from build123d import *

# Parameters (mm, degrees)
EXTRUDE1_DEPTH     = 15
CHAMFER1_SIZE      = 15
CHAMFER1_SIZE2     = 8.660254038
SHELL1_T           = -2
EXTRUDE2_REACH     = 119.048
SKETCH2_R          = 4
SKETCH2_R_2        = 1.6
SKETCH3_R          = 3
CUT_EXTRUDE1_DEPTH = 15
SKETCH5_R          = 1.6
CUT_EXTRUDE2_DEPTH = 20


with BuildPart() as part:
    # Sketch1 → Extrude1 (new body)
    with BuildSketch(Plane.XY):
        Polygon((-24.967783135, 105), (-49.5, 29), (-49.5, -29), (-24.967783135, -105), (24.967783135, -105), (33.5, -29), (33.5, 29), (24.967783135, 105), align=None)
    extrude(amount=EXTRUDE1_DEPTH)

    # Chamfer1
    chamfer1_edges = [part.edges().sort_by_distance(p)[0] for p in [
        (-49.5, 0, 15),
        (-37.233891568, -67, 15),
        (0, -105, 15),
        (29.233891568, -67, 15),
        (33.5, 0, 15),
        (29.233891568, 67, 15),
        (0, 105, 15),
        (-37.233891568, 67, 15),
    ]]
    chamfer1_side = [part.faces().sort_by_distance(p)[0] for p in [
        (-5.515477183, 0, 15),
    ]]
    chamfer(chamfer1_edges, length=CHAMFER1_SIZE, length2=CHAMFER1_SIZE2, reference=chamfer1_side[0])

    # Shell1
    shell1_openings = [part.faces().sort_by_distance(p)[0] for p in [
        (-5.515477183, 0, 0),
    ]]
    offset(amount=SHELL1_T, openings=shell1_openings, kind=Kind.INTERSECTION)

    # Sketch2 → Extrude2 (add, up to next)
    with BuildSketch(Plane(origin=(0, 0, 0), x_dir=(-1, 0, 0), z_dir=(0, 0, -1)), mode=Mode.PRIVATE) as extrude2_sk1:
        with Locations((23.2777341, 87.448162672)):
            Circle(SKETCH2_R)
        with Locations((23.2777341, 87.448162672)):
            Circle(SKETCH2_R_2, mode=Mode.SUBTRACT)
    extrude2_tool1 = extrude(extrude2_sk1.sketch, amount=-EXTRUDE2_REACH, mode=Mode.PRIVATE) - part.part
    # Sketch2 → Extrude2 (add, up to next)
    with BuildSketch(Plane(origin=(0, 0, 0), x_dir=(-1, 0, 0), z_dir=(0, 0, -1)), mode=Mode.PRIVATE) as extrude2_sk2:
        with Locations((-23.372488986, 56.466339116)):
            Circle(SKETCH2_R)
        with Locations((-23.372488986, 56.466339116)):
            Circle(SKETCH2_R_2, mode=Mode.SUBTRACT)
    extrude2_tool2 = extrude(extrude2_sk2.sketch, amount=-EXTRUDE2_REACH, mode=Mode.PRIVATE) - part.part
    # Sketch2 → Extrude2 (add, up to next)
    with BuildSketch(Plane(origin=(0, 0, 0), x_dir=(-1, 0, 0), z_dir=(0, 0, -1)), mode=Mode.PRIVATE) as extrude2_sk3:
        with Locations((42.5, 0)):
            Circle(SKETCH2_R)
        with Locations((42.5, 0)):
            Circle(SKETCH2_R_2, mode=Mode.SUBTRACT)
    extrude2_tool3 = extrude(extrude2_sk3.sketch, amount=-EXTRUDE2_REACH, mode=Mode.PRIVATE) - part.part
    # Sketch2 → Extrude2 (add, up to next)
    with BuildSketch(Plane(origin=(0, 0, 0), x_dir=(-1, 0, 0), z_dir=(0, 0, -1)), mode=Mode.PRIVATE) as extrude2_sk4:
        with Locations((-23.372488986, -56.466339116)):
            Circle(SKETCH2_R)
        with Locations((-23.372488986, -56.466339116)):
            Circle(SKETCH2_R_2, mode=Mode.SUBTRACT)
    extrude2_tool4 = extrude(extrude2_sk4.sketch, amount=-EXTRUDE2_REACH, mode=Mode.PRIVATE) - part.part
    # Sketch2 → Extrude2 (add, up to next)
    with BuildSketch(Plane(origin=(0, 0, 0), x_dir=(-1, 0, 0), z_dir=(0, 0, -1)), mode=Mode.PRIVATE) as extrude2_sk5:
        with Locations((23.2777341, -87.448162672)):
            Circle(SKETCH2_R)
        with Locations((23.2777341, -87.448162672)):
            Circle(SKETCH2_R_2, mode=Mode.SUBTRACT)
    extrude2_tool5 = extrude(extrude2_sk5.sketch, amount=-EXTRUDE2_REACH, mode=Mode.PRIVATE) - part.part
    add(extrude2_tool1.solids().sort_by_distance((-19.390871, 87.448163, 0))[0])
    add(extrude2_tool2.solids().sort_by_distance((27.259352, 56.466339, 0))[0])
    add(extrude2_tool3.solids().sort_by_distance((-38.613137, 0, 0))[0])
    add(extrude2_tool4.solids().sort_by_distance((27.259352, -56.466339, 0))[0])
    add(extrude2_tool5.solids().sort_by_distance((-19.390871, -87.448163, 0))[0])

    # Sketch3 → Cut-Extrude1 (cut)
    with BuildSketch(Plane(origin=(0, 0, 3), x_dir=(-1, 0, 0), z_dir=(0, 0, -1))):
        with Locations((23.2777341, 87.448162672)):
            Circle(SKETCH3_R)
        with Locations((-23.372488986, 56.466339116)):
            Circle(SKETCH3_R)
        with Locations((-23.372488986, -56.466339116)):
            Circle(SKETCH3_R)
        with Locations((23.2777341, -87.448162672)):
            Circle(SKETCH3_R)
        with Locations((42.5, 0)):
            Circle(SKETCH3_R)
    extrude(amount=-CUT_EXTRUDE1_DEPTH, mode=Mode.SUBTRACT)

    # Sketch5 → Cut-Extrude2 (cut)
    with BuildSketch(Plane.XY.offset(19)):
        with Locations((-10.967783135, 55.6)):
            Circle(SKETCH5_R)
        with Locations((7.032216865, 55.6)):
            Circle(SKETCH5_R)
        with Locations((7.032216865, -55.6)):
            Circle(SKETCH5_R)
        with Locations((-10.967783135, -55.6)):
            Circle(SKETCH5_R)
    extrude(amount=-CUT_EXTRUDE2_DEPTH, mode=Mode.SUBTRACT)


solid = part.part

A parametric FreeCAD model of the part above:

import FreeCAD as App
import Part
import Sketcher
Q = App.Units.Quantity


def edges_at(feature, points):
    """Names of the edges that pass closest to the given points."""
    edges = feature.Shape.Edges
    near = lambda p: min(range(len(edges)), key=lambda i: edges[i].distToShape(Part.Vertex(*p))[0])
    return sorted({f"Edge{near(p) + 1}" for p in points})


def faces_at(feature, points):
    """Names of the faces that lie closest to the given points."""
    faces = feature.Shape.Faces
    near = lambda p: min(range(len(faces)), key=lambda i: faces[i].distToShape(Part.Vertex(*p))[0])
    return sorted({f"Face{near(p) + 1}" for p in points})

doc = App.newDocument("Part")
body = doc.addObject("PartDesign::Body", "Body")

sketch1 = body.newObject("Sketcher::SketchObject", "Sketch")
sketch1.AttachmentSupport = (doc.getObject("XY_Plane"), [""])
sketch1.MapMode = "FlatFace"
sketch1.addGeometry(Part.LineSegment(App.Vector(-25, 105, 0), App.Vector(-50, 29, 0)), False)
sketch1.addGeometry(Part.LineSegment(App.Vector(-50, 29, 0), App.Vector(-50, -29, 0)), False)
sketch1.addGeometry(Part.LineSegment(App.Vector(-50, -29, 0), App.Vector(-25, -105, 0)), False)
sketch1.addGeometry(Part.LineSegment(App.Vector(-25, -105, 0), App.Vector(25, -105, 0)), False)
sketch1.addGeometry(Part.LineSegment(App.Vector(25, -105, 0), App.Vector(34, -29, 0)), False)
sketch1.addGeometry(Part.LineSegment(App.Vector(34, -29, 0), App.Vector(34, 29, 0)), False)
sketch1.addGeometry(Part.LineSegment(App.Vector(34, 29, 0), App.Vector(25, 105, 0)), False)
sketch1.addGeometry(Part.LineSegment(App.Vector(25, 105, 0), App.Vector(-25, 105, 0)), False)
sketch1.addConstraint(Sketcher.Constraint("Coincident", 0, 2, 1, 1))
sketch1.addConstraint(Sketcher.Constraint("Coincident", 1, 2, 2, 1))
sketch1.addConstraint(Sketcher.Constraint("Coincident", 2, 2, 3, 1))
sketch1.addConstraint(Sketcher.Constraint("Coincident", 3, 2, 4, 1))
sketch1.addConstraint(Sketcher.Constraint("Coincident", 4, 2, 5, 1))
sketch1.addConstraint(Sketcher.Constraint("Coincident", 5, 2, 6, 1))
sketch1.addConstraint(Sketcher.Constraint("Coincident", 6, 2, 7, 1))
sketch1.addConstraint(Sketcher.Constraint("Coincident", 7, 2, 0, 1))
sketch1.addConstraint(Sketcher.Constraint("Vertical", 1))
sketch1.addConstraint(Sketcher.Constraint("Horizontal", 3))
sketch1.addConstraint(Sketcher.Constraint("Vertical", 5))
sketch1.addConstraint(Sketcher.Constraint("Horizontal", 7))
sketch1.addConstraint(Sketcher.Constraint("Symmetric", 2, 2, 6, 2, -1, 1))
sketch1.addConstraint(Sketcher.Constraint("Horizontal", 1, 2, 4, 2))
sketch1.addConstraint(Sketcher.Constraint("Horizontal", 0, 2, 5, 2))
sketch1.addConstraint(Sketcher.Constraint("Vertical", 3, 2, 6, 2))
sketch1.addConstraint(Sketcher.Constraint("Vertical", 2, 2, 7, 2))
sketch1.addConstraint(Sketcher.Constraint("Equal", 0, 2))
sketch1.addConstraint(Sketcher.Constraint("DistanceY", 1, 2, 1, 1, Q("58 mm")))
sketch1.addConstraint(Sketcher.Constraint("DistanceY", 2, 2, -1, 1, Q("105 mm")))
sketch1.addConstraint(Sketcher.Constraint("DistanceX", 1, 2, 4, 2, Q("83 mm")))
sketch1.addConstraint(Sketcher.Constraint("DistanceX", 0, 2, -1, 1, Q("49.5 mm")))
sketch1.addConstraint(Sketcher.Constraint("Distance", 4, Q("76.477439 mm")))
pad1 = body.newObject("PartDesign::Pad", "Pad")
pad1.Profile = sketch1
pad1.Length = 15
doc.recompute()

chamfer = body.newObject("PartDesign::Chamfer", "Chamfer")
chamfer.Base = (pad1, edges_at(pad1, [
    (-49.5, 0, 15),
    (-37.234, -67, 15),
    (0, -105, 15),
    (29.234, -67, 15),
    (33.5, 0, 15),
    (29.234, 67, 15),
    (0, 105, 15),
    (-37.234, 67, 15),
]))
chamfer.ChamferType = "Two distances"
chamfer.Size = 15
chamfer.Size2 = 8.660254
chamfer.FlipDirection = True
doc.recompute()

thickness = body.newObject("PartDesign::Thickness", "Thickness")
thickness.Base = (chamfer, faces_at(chamfer, [(-8, 0, 0)]))
thickness.Value = 2
thickness.Reversed = True
thickness.Join = "Intersection"

sketch2 = body.newObject("Sketcher::SketchObject", "Sketch001")
sketch2.AttachmentSupport = (doc.getObject("XY_Plane"), [""])
sketch2.MapMode = "FlatFace"
sketch2.addGeometry(Part.Circle(App.Vector(-23.3, 87.4, 0), App.Vector(0, 0, 1), 4), False)
sketch2.addGeometry(Part.Circle(App.Vector(-23.3, 87.4, 0), App.Vector(0, 0, 1), 1.6), False)
sketch2.addConstraint(Sketcher.Constraint("Coincident", 1, 3, 0, 3))
sketch2.addConstraint(Sketcher.Constraint("Diameter", 0, Q("8 mm")))
sketch2.addConstraint(Sketcher.Constraint("Diameter", 1, Q("3.2 mm")))
sketch2.addConstraint(Sketcher.Constraint("DistanceX", 0, 3, -1, 1, Q("23.277734 mm")))
sketch2.addConstraint(Sketcher.Constraint("DistanceY", -1, 1, 0, 3, Q("87.448163 mm")))
pad2 = body.newObject("PartDesign::Pad", "Pad001")
pad2.Profile = sketch2
pad2.Type = "UpToFirst"

sketch3 = body.newObject("Sketcher::SketchObject", "Sketch002")
sketch3.AttachmentSupport = (doc.getObject("XY_Plane"), [""])
sketch3.MapMode = "FlatFace"
sketch3.addGeometry(Part.Circle(App.Vector(23.4, 56.5, 0), App.Vector(0, 0, 1), 4), False)
sketch3.addGeometry(Part.Circle(App.Vector(23.4, 56.5, 0), App.Vector(0, 0, 1), 1.6), False)
sketch3.addConstraint(Sketcher.Constraint("Coincident", 1, 3, 0, 3))
sketch3.addConstraint(Sketcher.Constraint("Diameter", 0, Q("8 mm")))
sketch3.addConstraint(Sketcher.Constraint("Diameter", 1, Q("3.2 mm")))
sketch3.addConstraint(Sketcher.Constraint("DistanceX", -1, 1, 0, 3, Q("23.372489 mm")))
sketch3.addConstraint(Sketcher.Constraint("DistanceY", -1, 1, 0, 3, Q("56.466339 mm")))
pad3 = body.newObject("PartDesign::Pad", "Pad002")
pad3.Profile = sketch3
pad3.Type = "UpToFirst"

sketch4 = body.newObject("Sketcher::SketchObject", "Sketch003")
sketch4.AttachmentSupport = (doc.getObject("XY_Plane"), [""])
sketch4.MapMode = "FlatFace"
sketch4.addGeometry(Part.Circle(App.Vector(-42.5, 0, 0), App.Vector(0, 0, 1), 4), False)
sketch4.addGeometry(Part.Circle(App.Vector(-42.5, 0, 0), App.Vector(0, 0, 1), 1.6), False)
sketch4.addConstraint(Sketcher.Constraint("Coincident", 1, 3, 0, 3))
sketch4.addConstraint(Sketcher.Constraint("PointOnObject", 0, 3, -1))
sketch4.addConstraint(Sketcher.Constraint("Diameter", 0, Q("8 mm")))
sketch4.addConstraint(Sketcher.Constraint("Diameter", 1, Q("3.2 mm")))
sketch4.addConstraint(Sketcher.Constraint("DistanceX", 0, 3, -1, 1, Q("42.5 mm")))
pad4 = body.newObject("PartDesign::Pad", "Pad003")
pad4.Profile = sketch4
pad4.Type = "UpToFirst"

sketch5 = body.newObject("Sketcher::SketchObject", "Sketch004")
sketch5.AttachmentSupport = (doc.getObject("XY_Plane"), [""])
sketch5.MapMode = "FlatFace"
sketch5.addGeometry(Part.Circle(App.Vector(23.4, -56.5, 0), App.Vector(0, 0, 1), 4), False)
sketch5.addGeometry(Part.Circle(App.Vector(23.4, -56.5, 0), App.Vector(0, 0, 1), 1.6), False)
sketch5.addConstraint(Sketcher.Constraint("Coincident", 1, 3, 0, 3))
sketch5.addConstraint(Sketcher.Constraint("Diameter", 0, Q("8 mm")))
sketch5.addConstraint(Sketcher.Constraint("Diameter", 1, Q("3.2 mm")))
sketch5.addConstraint(Sketcher.Constraint("DistanceX", -1, 1, 0, 3, Q("23.372489 mm")))
sketch5.addConstraint(Sketcher.Constraint("DistanceY", 0, 3, -1, 1, Q("56.466339 mm")))
pad5 = body.newObject("PartDesign::Pad", "Pad004")
pad5.Profile = sketch5
pad5.Type = "UpToFirst"

sketch6 = body.newObject("Sketcher::SketchObject", "Sketch005")
sketch6.AttachmentSupport = (doc.getObject("XY_Plane"), [""])
sketch6.MapMode = "FlatFace"
sketch6.addGeometry(Part.Circle(App.Vector(-23.3, -87.4, 0), App.Vector(0, 0, 1), 4), False)
sketch6.addGeometry(Part.Circle(App.Vector(-23.3, -87.4, 0), App.Vector(0, 0, 1), 1.6), False)
sketch6.addConstraint(Sketcher.Constraint("Coincident", 1, 3, 0, 3))
sketch6.addConstraint(Sketcher.Constraint("Diameter", 0, Q("8 mm")))
sketch6.addConstraint(Sketcher.Constraint("Diameter", 1, Q("3.2 mm")))
sketch6.addConstraint(Sketcher.Constraint("DistanceX", 0, 3, -1, 1, Q("23.277734 mm")))
sketch6.addConstraint(Sketcher.Constraint("DistanceY", 0, 3, -1, 1, Q("87.448163 mm")))
pad6 = body.newObject("PartDesign::Pad", "Pad005")
pad6.Profile = sketch6
pad6.Type = "UpToFirst"

sketch7 = body.newObject("Sketcher::SketchObject", "Sketch006")
sketch7.AttachmentSupport = (doc.getObject("XY_Plane"), [""])
sketch7.MapMode = "FlatFace"
sketch7.AttachmentOffset = App.Placement(App.Vector(0, 0, 3), App.Rotation())
sketch7.addGeometry(Part.Circle(App.Vector(-23.3, 87.4, 0), App.Vector(0, 0, 1), 3), False)
sketch7.addGeometry(Part.Circle(App.Vector(23.4, 56.5, 0), App.Vector(0, 0, 1), 3), False)
sketch7.addGeometry(Part.Circle(App.Vector(23.4, -56.5, 0), App.Vector(0, 0, 1), 3), False)
sketch7.addGeometry(Part.Circle(App.Vector(-23.3, -87.4, 0), App.Vector(0, 0, 1), 3), False)
sketch7.addGeometry(Part.Circle(App.Vector(-42.5, 0, 0), App.Vector(0, 0, 1), 3), False)
sketch7.addConstraint(Sketcher.Constraint("Equal", 0, 1))
sketch7.addConstraint(Sketcher.Constraint("Equal", 1, 2))
sketch7.addConstraint(Sketcher.Constraint("Equal", 2, 3))
sketch7.addConstraint(Sketcher.Constraint("Equal", 3, 4))
sketch7.addConstraint(Sketcher.Constraint("Symmetric", 1, 3, 2, 3, -1))
sketch7.addConstraint(Sketcher.Constraint("Symmetric", 0, 3, 3, 3, -1))
sketch7.addConstraint(Sketcher.Constraint("PointOnObject", 4, 3, -1))
sketch7.addConstraint(Sketcher.Constraint("Diameter", 0, Q("6 mm")))
sketch7.addConstraint(Sketcher.Constraint("DistanceX", 4, 3, -1, 1, Q("42.5 mm")))
sketch7.addConstraint(Sketcher.Constraint("DistanceY", 2, 3, 0, 3, Q("143.914502 mm")))
sketch7.addConstraint(Sketcher.Constraint("DistanceX", -1, 1, 1, 3, Q("23.372489 mm")))
sketch7.addConstraint(Sketcher.Constraint("DistanceY", -1, 1, 1, 3, Q("56.466339 mm")))
sketch7.addConstraint(Sketcher.Constraint("DistanceX", 0, 3, -1, 1, Q("23.277734 mm")))
pocket1 = body.newObject("PartDesign::Pocket", "Pocket")
pocket1.Profile = sketch7
pocket1.Length = 15
pocket1.Reversed = True

sketch8 = body.newObject("Sketcher::SketchObject", "Sketch007")
sketch8.AttachmentSupport = (doc.getObject("XY_Plane"), [""])
sketch8.MapMode = "FlatFace"
sketch8.AttachmentOffset = App.Placement(App.Vector(0, 0, 19), App.Rotation())
sketch8.addGeometry(Part.Circle(App.Vector(-11, 55.6, 0), App.Vector(0, 0, 1), 1.6), False)
sketch8.addGeometry(Part.Circle(App.Vector(7, 55.6, 0), App.Vector(0, 0, 1), 1.6), False)
sketch8.addGeometry(Part.Circle(App.Vector(7, -55.6, 0), App.Vector(0, 0, 1), 1.6), False)
sketch8.addGeometry(Part.Circle(App.Vector(-11, -55.6, 0), App.Vector(0, 0, 1), 1.6), False)
sketch8.addConstraint(Sketcher.Constraint("Equal", 0, 1))
sketch8.addConstraint(Sketcher.Constraint("Equal", 1, 2))
sketch8.addConstraint(Sketcher.Constraint("Equal", 2, 3))
sketch8.addConstraint(Sketcher.Constraint("Symmetric", 1, 3, 2, 3, -1))
sketch8.addConstraint(Sketcher.Constraint("Symmetric", 0, 3, 3, 3, -1))
sketch8.addConstraint(Sketcher.Constraint("Horizontal", 0, 3, 1, 3))
sketch8.addConstraint(Sketcher.Constraint("Diameter", 0, Q("3.2 mm")))
sketch8.addConstraint(Sketcher.Constraint("DistanceX", 0, 3, 1, 3, Q("18 mm")))
sketch8.addConstraint(Sketcher.Constraint("DistanceY", -1, 1, 0, 3, Q("55.6 mm")))
sketch8.addConstraint(Sketcher.Constraint("DistanceX", 0, 3, -1, 1, Q("10.967783 mm")))
pocket2 = body.newObject("PartDesign::Pocket", "Pocket001")
pocket2.Profile = sketch8
pocket2.Length = 20

doc.recompute()
